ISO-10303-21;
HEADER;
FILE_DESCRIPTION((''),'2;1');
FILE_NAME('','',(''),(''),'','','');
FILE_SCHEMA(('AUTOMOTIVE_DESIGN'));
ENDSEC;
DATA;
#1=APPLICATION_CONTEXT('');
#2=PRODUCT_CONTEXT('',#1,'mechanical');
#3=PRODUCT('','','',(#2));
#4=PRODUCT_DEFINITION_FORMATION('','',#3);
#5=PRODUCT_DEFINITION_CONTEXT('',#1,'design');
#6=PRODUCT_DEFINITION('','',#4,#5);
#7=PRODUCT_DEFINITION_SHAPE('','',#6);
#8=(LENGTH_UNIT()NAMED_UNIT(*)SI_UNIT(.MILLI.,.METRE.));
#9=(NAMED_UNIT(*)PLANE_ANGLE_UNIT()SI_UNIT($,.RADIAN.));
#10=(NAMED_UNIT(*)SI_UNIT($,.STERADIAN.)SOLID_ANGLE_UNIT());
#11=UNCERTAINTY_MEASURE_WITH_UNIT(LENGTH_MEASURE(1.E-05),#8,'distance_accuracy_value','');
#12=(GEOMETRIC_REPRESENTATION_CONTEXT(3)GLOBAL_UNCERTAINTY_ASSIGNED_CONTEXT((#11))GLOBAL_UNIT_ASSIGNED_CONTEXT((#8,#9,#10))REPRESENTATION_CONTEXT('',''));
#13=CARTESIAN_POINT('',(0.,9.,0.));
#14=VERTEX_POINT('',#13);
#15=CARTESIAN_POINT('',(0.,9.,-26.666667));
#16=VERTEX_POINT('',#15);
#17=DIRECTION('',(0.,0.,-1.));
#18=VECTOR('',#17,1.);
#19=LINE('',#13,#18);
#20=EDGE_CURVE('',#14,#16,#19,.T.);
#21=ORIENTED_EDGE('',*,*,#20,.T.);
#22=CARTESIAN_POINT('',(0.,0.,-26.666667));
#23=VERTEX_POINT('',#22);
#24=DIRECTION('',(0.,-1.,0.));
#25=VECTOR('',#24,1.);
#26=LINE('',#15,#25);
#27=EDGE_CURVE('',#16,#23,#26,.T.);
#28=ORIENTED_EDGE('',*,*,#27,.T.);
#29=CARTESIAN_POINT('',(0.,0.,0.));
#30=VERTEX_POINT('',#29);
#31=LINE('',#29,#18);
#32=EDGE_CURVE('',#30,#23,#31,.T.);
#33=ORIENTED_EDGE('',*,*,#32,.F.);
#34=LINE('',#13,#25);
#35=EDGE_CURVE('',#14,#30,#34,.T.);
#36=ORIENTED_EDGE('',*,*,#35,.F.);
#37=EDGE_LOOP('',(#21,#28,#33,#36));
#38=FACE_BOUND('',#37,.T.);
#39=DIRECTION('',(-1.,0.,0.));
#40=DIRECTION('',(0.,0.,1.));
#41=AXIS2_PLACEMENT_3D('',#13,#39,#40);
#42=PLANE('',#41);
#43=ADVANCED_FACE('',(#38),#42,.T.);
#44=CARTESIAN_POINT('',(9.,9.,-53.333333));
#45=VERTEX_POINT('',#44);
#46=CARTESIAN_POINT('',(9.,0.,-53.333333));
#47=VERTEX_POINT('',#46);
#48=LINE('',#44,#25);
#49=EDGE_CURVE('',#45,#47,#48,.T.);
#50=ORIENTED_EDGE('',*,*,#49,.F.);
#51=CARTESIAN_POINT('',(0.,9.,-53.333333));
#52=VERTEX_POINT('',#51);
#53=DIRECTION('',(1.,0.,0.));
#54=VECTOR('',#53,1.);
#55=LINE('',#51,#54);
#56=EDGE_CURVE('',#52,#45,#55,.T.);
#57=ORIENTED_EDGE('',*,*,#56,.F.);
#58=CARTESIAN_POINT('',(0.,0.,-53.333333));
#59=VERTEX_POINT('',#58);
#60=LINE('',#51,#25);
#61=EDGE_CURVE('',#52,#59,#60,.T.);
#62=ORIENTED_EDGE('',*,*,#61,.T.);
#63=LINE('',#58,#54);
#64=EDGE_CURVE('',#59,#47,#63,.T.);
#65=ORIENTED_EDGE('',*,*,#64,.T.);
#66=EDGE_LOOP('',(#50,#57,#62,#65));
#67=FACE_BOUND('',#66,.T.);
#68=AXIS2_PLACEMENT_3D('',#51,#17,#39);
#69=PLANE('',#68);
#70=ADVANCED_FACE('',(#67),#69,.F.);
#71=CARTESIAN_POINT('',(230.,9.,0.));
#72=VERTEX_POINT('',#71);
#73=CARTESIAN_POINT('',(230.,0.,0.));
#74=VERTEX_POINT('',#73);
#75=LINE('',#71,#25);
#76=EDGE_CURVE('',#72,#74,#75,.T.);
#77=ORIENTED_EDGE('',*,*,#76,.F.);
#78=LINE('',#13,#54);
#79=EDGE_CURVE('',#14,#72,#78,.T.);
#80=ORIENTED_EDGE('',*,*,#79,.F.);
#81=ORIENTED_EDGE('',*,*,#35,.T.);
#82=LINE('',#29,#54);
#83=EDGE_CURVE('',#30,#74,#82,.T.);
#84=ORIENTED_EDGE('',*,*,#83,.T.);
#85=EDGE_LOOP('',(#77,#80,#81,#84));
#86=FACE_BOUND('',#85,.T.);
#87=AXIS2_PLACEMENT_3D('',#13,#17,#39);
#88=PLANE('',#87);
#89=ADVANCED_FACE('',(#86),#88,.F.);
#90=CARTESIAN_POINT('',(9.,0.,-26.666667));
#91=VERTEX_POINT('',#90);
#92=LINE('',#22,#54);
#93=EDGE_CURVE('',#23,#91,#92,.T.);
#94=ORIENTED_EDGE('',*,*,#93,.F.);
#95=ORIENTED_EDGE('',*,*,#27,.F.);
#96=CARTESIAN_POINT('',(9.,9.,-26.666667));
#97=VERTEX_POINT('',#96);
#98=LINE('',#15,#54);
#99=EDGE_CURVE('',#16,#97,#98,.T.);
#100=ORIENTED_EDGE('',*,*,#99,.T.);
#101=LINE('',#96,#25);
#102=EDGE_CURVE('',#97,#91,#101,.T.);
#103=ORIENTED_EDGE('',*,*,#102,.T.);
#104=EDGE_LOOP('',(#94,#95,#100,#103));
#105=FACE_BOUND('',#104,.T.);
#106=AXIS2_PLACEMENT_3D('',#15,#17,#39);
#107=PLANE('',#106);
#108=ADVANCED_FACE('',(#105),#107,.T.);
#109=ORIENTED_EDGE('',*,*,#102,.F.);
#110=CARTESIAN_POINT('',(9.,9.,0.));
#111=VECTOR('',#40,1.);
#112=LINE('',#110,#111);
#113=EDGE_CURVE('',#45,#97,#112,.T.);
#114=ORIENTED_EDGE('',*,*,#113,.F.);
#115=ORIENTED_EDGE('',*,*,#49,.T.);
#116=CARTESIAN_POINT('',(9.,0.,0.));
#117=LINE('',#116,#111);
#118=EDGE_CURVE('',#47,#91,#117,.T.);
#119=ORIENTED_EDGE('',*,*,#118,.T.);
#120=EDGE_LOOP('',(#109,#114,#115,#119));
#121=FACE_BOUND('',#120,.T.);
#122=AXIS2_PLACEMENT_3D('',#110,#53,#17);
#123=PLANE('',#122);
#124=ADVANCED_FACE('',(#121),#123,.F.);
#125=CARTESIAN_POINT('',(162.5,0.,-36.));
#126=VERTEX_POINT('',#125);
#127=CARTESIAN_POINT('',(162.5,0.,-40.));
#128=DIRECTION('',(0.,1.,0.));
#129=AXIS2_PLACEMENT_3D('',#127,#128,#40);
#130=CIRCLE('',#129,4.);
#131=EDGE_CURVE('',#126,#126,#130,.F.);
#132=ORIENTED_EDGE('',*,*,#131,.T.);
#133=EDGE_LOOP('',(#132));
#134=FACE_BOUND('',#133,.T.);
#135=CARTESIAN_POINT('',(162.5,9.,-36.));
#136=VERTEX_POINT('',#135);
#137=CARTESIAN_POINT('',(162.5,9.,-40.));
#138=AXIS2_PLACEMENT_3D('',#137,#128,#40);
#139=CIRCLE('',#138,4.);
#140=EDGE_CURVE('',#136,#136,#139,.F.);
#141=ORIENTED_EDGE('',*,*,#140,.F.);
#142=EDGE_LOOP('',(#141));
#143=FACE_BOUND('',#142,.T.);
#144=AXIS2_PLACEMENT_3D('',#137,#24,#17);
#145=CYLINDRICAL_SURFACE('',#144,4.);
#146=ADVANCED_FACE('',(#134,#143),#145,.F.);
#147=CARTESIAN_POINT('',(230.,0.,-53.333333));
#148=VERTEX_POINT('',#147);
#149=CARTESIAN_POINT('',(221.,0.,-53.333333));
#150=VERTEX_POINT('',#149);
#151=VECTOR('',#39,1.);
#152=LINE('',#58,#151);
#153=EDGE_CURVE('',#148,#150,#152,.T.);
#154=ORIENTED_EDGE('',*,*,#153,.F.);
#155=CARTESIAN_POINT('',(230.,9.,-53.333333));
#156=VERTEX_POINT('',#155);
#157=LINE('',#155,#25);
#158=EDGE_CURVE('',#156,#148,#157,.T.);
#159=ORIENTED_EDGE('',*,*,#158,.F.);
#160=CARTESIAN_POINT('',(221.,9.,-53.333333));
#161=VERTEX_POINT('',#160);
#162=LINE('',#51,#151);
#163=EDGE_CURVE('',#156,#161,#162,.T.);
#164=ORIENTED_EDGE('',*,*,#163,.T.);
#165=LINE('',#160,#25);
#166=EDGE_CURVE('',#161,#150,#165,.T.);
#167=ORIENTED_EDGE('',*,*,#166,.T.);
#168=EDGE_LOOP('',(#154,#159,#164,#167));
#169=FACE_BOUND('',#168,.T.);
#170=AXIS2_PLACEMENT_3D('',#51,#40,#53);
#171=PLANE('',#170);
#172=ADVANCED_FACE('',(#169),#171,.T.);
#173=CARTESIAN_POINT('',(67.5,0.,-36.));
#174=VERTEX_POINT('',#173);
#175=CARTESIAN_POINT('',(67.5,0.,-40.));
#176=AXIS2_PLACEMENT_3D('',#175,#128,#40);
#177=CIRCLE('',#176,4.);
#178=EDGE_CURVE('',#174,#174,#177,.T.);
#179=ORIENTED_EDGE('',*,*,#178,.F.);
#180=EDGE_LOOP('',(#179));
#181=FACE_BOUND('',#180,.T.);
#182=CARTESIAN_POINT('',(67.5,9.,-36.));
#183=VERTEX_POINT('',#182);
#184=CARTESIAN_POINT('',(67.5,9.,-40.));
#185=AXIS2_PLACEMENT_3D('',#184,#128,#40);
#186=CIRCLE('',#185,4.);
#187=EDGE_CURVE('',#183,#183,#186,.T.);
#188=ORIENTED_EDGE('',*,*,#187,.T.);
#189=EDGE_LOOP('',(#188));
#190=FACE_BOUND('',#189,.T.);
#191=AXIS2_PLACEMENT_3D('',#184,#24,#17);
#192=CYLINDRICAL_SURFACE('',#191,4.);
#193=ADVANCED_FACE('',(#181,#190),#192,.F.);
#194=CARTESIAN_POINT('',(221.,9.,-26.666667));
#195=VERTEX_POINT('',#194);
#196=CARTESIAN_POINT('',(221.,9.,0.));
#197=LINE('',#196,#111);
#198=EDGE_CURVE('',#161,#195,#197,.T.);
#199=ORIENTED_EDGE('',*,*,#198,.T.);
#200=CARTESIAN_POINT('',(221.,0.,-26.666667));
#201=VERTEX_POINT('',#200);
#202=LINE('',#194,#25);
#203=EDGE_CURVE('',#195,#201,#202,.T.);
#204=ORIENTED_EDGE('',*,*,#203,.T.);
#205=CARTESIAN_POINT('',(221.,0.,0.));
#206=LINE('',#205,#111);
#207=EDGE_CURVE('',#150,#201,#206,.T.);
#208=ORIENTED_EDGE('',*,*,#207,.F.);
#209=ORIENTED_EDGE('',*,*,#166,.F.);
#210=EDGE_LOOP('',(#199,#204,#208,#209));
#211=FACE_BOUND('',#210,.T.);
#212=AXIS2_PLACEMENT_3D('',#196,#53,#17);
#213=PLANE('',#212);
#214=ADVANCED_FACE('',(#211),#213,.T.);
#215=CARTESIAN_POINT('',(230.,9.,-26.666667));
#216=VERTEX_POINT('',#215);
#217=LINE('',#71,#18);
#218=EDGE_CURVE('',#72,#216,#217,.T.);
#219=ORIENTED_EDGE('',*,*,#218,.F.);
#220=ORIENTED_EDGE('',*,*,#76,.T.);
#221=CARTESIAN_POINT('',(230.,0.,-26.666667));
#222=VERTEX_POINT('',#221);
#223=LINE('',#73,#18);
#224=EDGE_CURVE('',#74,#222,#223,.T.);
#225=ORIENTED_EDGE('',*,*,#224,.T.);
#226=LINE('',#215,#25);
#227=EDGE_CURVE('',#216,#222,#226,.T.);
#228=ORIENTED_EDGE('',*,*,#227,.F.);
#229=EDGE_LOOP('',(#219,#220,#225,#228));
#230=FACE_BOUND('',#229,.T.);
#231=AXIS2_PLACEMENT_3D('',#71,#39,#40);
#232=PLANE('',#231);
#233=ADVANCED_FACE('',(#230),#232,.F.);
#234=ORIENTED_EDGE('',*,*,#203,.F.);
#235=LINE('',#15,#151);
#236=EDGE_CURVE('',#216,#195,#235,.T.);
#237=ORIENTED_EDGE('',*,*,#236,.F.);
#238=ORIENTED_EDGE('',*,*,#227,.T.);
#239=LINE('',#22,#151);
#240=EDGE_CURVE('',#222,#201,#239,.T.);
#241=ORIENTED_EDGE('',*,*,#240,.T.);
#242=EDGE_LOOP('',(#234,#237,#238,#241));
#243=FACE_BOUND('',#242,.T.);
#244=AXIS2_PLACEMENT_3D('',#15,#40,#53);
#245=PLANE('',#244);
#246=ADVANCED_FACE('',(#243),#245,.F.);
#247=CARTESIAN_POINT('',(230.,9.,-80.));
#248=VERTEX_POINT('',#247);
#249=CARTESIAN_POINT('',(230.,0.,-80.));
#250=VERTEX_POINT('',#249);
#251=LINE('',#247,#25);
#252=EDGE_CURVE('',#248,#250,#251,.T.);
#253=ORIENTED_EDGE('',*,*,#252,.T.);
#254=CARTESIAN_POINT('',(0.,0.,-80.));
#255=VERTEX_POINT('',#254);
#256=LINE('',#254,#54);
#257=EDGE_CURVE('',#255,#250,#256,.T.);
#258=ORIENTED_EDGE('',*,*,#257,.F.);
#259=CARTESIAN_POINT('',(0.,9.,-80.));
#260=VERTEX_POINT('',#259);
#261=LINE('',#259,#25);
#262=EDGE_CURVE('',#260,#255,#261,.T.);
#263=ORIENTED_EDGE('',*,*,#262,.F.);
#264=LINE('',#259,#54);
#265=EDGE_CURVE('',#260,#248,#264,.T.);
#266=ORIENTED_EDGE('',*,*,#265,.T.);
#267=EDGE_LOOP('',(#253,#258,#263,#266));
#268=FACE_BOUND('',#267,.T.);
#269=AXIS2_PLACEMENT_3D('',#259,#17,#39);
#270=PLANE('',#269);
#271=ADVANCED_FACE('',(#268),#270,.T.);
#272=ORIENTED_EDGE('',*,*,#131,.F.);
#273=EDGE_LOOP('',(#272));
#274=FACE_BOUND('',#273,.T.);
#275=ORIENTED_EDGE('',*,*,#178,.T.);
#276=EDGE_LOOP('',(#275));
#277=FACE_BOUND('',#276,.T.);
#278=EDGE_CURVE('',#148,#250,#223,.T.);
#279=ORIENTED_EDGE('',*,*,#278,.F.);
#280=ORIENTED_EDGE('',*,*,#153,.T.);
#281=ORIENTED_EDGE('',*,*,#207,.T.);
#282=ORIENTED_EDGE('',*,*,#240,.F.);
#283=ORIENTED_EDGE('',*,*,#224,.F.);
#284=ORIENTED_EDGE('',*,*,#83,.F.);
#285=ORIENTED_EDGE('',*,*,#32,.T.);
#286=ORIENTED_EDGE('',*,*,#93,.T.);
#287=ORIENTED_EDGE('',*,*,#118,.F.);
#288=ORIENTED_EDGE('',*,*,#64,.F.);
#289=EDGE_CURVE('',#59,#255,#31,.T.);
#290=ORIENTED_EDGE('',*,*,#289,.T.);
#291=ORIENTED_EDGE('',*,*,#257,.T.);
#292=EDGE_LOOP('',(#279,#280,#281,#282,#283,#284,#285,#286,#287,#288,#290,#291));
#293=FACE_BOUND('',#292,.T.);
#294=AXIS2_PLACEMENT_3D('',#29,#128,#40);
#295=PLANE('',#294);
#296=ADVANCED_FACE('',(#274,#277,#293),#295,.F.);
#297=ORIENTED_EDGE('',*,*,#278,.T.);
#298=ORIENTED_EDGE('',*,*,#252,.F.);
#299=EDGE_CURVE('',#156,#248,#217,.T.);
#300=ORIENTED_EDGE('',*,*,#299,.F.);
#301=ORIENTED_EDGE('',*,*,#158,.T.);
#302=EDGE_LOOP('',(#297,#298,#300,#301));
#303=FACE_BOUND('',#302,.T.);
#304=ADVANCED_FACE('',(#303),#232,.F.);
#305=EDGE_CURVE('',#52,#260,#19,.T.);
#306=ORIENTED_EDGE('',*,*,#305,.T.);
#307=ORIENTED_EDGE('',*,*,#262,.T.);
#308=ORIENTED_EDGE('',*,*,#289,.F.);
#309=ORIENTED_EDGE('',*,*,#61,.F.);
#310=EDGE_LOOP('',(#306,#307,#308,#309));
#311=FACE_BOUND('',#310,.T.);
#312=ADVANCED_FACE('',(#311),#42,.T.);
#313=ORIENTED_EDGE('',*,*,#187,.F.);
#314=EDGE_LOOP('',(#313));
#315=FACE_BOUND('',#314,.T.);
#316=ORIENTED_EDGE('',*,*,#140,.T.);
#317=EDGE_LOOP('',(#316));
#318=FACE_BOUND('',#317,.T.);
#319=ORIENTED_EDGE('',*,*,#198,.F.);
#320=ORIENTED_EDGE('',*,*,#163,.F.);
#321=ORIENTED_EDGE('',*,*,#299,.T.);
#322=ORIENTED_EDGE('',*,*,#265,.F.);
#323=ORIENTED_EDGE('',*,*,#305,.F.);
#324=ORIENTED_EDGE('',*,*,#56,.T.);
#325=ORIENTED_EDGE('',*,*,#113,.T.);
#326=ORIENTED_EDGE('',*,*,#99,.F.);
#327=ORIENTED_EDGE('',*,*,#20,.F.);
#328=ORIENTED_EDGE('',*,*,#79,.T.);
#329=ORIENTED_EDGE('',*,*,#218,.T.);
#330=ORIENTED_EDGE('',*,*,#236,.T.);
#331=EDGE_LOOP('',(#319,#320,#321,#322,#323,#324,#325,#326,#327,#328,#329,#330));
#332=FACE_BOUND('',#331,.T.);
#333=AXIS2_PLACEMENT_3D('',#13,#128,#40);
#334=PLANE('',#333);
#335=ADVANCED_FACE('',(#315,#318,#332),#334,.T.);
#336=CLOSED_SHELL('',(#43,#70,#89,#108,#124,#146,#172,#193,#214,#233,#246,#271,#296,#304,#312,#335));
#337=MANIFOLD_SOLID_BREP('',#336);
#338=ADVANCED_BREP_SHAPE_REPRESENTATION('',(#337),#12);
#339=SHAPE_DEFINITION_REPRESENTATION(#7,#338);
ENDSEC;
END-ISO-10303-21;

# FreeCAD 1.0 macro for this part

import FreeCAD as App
import Part
import Sketcher
Q = App.Units.Quantity

doc = App.newDocument("Part")
body = doc.addObject("PartDesign::Body", "Body")

# Sketch on XZ plane
sketch1 = doc.addObject("Sketcher::SketchObject", "Sketch")
body.addObject(sketch1)
sketch1.AttachmentSupport = (doc.XZ_Plane, [""])
sketch1.MapMode = "FlatFace"
sketch1.addGeometry([
    Part.LineSegment(App.Vector(9, 0, 0), App.Vector(230, 0, 0)),  # 0
    Part.LineSegment(App.Vector(230, 0, 0), App.Vector(230, -26.7, 0)),  # 1
    Part.LineSegment(App.Vector(230, -26.7, 0), App.Vector(221, -26.7, 0)),  # 2
    Part.LineSegment(App.Vector(221, -26.7, 0), App.Vector(221, -53.3, 0)),  # 3
    Part.LineSegment(App.Vector(221, -53.3, 0), App.Vector(230, -53.3, 0)),  # 4
    Part.LineSegment(App.Vector(230, -53.3, 0), App.Vector(230, -80, 0)),  # 5
    Part.LineSegment(App.Vector(230, -80, 0), App.Vector(221, -80, 0)),  # 6
    Part.LineSegment(App.Vector(221, -80, 0), App.Vector(9, -80, 0)),  # 7
    Part.LineSegment(App.Vector(9, -80, 0), App.Vector(0, -80, 0)),  # 8
    Part.LineSegment(App.Vector(0, -80, 0), App.Vector(0, -53.3, 0)),  # 9
    Part.LineSegment(App.Vector(0, -53.3, 0), App.Vector(9, -53.3, 0)),  # 10
    Part.LineSegment(App.Vector(9, -53.3, 0), App.Vector(9, -26.7, 0)),  # 11
    Part.LineSegment(App.Vector(9, -26.7, 0), App.Vector(0, -26.7, 0)),  # 12
    Part.LineSegment(App.Vector(0, -26.7, 0), App.Vector(0, 0, 0)),  # 13
    Part.LineSegment(App.Vector(0, 0, 0), App.Vector(9, 0, 0)),  # 14
    Part.Circle(App.Vector(67.5, -40, 0), App.Vector(0, 0, 1), 4),  # 15
    Part.Circle(App.Vector(162.5, -40, 0), App.Vector(0, 0, 1), 4),  # 16
], False)
sketch1.addConstraint([
    Sketcher.Constraint("Coincident", 0, 2, 1, 1),
    Sketcher.Constraint("Coincident", 1, 2, 2, 1),
    Sketcher.Constraint("Coincident", 2, 2, 3, 1),
    Sketcher.Constraint("Coincident", 3, 2, 4, 1),
    Sketcher.Constraint("Coincident", 4, 2, 5, 1),
    Sketcher.Constraint("Coincident", 5, 2, 6, 1),
    Sketcher.Constraint("Coincident", 6, 2, 7, 1),
    Sketcher.Constraint("Coincident", 7, 2, 8, 1),
    Sketcher.Constraint("Coincident", 8, 2, 9, 1),
    Sketcher.Constraint("Coincident", 9, 2, 10, 1),
    Sketcher.Constraint("Coincident", 10, 2, 11, 1),
    Sketcher.Constraint("Coincident", 11, 2, 12, 1),
    Sketcher.Constraint("Coincident", 12, 2, 13, 1),
    Sketcher.Constraint("Coincident", 13, 2, 14, 1),
    Sketcher.Constraint("Coincident", 14, 2, 0, 1),
    Sketcher.Constraint("Horizontal", 0),
    Sketcher.Constraint("Vertical", 1),
    Sketcher.Constraint("Horizontal", 2),
    Sketcher.Constraint("Vertical", 3),
    Sketcher.Constraint("Horizontal", 4),
    Sketcher.Constraint("Vertical", 5),
    Sketcher.Constraint("Horizontal", 6),
    Sketcher.Constraint("Horizontal", 7),
    Sketcher.Constraint("Horizontal", 8),
    Sketcher.Constraint("Vertical", 9),
    Sketcher.Constraint("Horizontal", 10),
    Sketcher.Constraint("Vertical", 11),
    Sketcher.Constraint("Horizontal", 12),
    Sketcher.Constraint("Vertical", 13),
    Sketcher.Constraint("Horizontal", 14),
    Sketcher.Constraint("Coincident", 13, 2, -1, 1),
    Sketcher.Constraint("Equal", 15, 16),
    Sketcher.Constraint("PointOnObject", 8, 2, -2),
    Sketcher.Constraint("Horizontal", 15, 3, 16, 3),
    Sketcher.Constraint("Horizontal", 4, 2, 9, 2),
    Sketcher.Constraint("Horizontal", 2, 2, 11, 2),
    Sketcher.Constraint("Vertical", 1, 2, 4, 2),
    Sketcher.Constraint("Vertical", 3, 2, 6, 2),
    Sketcher.Constraint("Vertical", 7, 2, 10, 2),
    Sketcher.Constraint("Vertical", 11, 2, 14, 2),
    Sketcher.Constraint("Equal", 6, 8),
    Sketcher.Constraint("Equal", 1, 3),
    Sketcher.Constraint("Equal", 3, 5),
    Sketcher.Constraint("Diameter", 15, Q("8 mm")),
    Sketcher.Constraint("DistanceX", 0, 1, 0, 2, Q("221 mm")),
    Sketcher.Constraint("DistanceX", 2, 2, 2, 1, Q("9 mm")),
    Sketcher.Constraint("DistanceY", 15, 3, -1, 1, Q("40 mm")),
    Sketcher.Constraint("DistanceY", 5, 2, -1, 1, Q("80 mm")),
    Sketcher.Constraint("DistanceX", 15, 3, 16, 3, Q("95 mm")),
    Sketcher.Constraint("DistanceX", -1, 1, 15, 3, Q("67.5 mm")),
])
pad1 = doc.addObject("PartDesign::Pad", "Pad")
body.addObject(pad1)
pad1.Profile = sketch1
pad1.Length = 9
pad1.Reversed = True

doc.recompute()
